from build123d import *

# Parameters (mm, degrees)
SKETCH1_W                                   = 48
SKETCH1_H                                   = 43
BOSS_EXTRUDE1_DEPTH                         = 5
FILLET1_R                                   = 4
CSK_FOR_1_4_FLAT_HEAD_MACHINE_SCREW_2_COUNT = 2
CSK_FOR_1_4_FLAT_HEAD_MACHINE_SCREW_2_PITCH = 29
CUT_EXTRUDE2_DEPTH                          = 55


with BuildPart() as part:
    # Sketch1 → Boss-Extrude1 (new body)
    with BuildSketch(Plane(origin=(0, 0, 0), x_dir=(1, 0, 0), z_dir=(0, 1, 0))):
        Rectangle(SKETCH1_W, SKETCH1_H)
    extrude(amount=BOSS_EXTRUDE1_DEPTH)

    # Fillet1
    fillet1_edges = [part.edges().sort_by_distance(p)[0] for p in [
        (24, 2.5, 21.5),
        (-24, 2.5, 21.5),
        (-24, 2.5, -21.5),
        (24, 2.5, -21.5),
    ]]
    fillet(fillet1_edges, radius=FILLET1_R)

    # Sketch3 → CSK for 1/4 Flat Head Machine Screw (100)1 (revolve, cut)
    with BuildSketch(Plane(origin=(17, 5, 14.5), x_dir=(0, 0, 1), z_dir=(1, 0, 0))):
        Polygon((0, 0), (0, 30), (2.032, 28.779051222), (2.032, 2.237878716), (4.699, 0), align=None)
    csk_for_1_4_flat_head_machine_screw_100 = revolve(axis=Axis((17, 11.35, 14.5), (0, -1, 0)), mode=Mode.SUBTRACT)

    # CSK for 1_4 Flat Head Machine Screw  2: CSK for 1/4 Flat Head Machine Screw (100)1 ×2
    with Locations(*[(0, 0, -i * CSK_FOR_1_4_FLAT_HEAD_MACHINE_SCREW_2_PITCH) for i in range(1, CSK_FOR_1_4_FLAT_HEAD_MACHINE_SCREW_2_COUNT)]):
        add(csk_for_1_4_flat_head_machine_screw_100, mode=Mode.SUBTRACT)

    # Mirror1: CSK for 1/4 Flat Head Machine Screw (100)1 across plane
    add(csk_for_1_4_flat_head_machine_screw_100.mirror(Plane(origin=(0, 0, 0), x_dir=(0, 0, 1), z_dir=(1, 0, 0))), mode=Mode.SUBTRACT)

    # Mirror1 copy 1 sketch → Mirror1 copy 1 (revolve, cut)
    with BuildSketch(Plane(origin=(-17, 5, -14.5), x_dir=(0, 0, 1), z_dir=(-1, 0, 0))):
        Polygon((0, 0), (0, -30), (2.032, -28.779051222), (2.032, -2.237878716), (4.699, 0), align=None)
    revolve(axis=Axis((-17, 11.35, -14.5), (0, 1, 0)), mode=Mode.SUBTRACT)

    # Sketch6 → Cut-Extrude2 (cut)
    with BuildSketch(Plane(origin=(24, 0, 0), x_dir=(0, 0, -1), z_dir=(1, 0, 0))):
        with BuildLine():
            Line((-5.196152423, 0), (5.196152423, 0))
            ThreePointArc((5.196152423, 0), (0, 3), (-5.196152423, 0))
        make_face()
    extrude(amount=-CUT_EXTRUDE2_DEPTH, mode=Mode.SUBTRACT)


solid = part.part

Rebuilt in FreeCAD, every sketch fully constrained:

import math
import FreeCAD as App
import Part
import Sketcher
from FreeCAD import Vector
Q = App.Units.Quantity


def edges_at(feature, points):
    """Names of the edges that pass closest to the given points."""
    edges = feature.Shape.Edges
    near = lambda p: min(range(len(edges)), key=lambda i: edges[i].distToShape(Part.Vertex(*p))[0])
    return sorted({f"Edge{near(p) + 1}" for p in points})


def add_polygon(sketch, points):
    """Adds a closed chain of lines whose ends are joined by coincident constraints."""
    first, n = sketch.GeometryCount, len(points)
    for a, b in zip(points, points[1:] + points[:1]):
        sketch.addGeometry(Part.LineSegment(App.Vector(*a, 0), App.Vector(*b, 0)), False)
    for i in range(n):
        sketch.addConstraint(Sketcher.Constraint("Coincident", first + i, 2, first + (i + 1) % n, 1))

doc = App.newDocument("Part")
params = doc.addObject("Spreadsheet::Sheet", "Params")
for row, (alias, value) in enumerate([
    ("sketch1_width", "48 mm"),
    ("sketch1_height", "43 mm"),
    ("pad1_length", "5 mm"),
    ("fillet_radius", "4 mm"),
    ("sketch2_width", "30 mm"),
    ("groove_angle", "360 deg"),
    ("linearpattern_pitch", "29 mm"),
    ("sketch3_width", "30 mm"),
    ("groove2_angle", "360 deg"),
    ("sketch4_radius", "6 mm"),
    ("pocket1_length", "55 mm"),
], start=1):
    params.set(f"A{row}", alias)
    params.set(f"B{row}", "=" + value)
    params.setAlias(f"B{row}", alias)

body = doc.addObject("PartDesign::Body", "Body")

sketch1 = doc.addObject("Sketcher::SketchObject", "Sketch")
body.addObject(sketch1)
sketch1.AttachmentSupport = (doc.XZ_Plane, [""])
sketch1.MapMode = "FlatFace"
add_polygon(sketch1, [(-24, -22), (-24, 22), (24, 22), (24, -22)])
sketch1.addConstraint([
    Sketcher.Constraint("Vertical", 0),
    Sketcher.Constraint("Horizontal", 1),
    Sketcher.Constraint("Vertical", 2),
    Sketcher.Constraint("Horizontal", 3),
    Sketcher.Constraint("Symmetric", 0, 2, 2, 2, -1, 1),
    Sketcher.Constraint("DistanceX", 1, 1, 1, 2, 48.0),
    Sketcher.Constraint("DistanceY", 0, 1, 0, 2, 43.0),
])
sketch1.setExpression("Constraints[9]", "Params.sketch1_width")
sketch1.setExpression("Constraints[10]", "Params.sketch1_height")
pad1 = doc.addObject("PartDesign::Pad", "Pad")
body.addObject(pad1)
pad1.Profile = sketch1
pad1.setExpression("Length", "Params.pad1_length")
pad1.Reversed = True
doc.recompute()

fillet = doc.addObject("PartDesign::Fillet", "Fillet")
body.addObject(fillet)
fillet.Base = (pad1, edges_at(pad1, [
    (24, 2.5, 21.5),
    (-24, 2.5, 21.5),
    (-24, 2.5, -21.5),
    (24, 2.5, -21.5),
]))
fillet.setExpression("Radius", "Params.fillet_radius")

sketch2 = doc.addObject("Sketcher::SketchObject", "Sketch001")
body.addObject(sketch2)
sketch2.AttachmentSupport = (doc.YZ_Plane, [""])
sketch2.MapMode = "FlatFace"
sketch2.AttachmentOffset = App.Placement(Vector(0, 0, 17), App.Rotation())
add_polygon(sketch2, [(-25, 14.5), (5, 14.5), (5, 19.2), (2.8, 16.5), (-23.8, 16.5)])
sketch2.addGeometry(Part.LineSegment(Vector(5, 14.5, 0), Vector(-25, 14.5, 0)), True)
sketch2.addConstraint([
    Sketcher.Constraint("Horizontal", 0),
    Sketcher.Constraint("Vertical", 1),
    Sketcher.Constraint("Horizontal", 3),
    Sketcher.Constraint("Horizontal", 5),
    Sketcher.Constraint("Coincident", 5, 1, 0, 2),
    Sketcher.Constraint("Equal", 0, 5),
    Sketcher.Constraint("DistanceX", 0, 1, 0, 2, 30.0),
    Sketcher.Constraint("Angle", 2, Q("-130 deg")),
    Sketcher.Constraint("Angle", 4, Q("-121 deg")),
    Sketcher.Constraint("DistanceX", -1, 1, 0, 2, 5.0),
    Sketcher.Constraint("DistanceY", -1, 1, 0, 2, 14.5),
    Sketcher.Constraint("DistanceY", 1, 1, 1, 2, 4.699),
    Sketcher.Constraint("DistanceY", -1, 1, 2, 2, 16.532),
])
sketch2.setExpression("Constraints[11]", "Params.sketch2_width")
groove = doc.addObject("PartDesign::Groove", "Groove")
body.addObject(groove)
groove.Profile = sketch2
groove.ReferenceAxis = (sketch2, ["Axis0"])
groove.setExpression("Angle", "Params.groove_angle")
doc.recompute()

linearpattern = doc.addObject("PartDesign::LinearPattern", "LinearPattern")
body.addObject(linearpattern)
linearpattern.Originals = [groove]
linearpattern.Direction = (doc.Z_Axis, [""])
linearpattern.Mode = "offset"
linearpattern.setExpression("Offset", "Params.linearpattern_pitch")
linearpattern.Occurrences = 2
linearpattern.Reversed = True
body.Tip = linearpattern
doc.recompute()

mirrored = doc.addObject("PartDesign::Mirrored", "Mirrored")
body.addObject(mirrored)
mirrored.Originals = [groove]
mirrored.MirrorPlane = (doc.YZ_Plane, [""])
body.Tip = mirrored

sketch3 = doc.addObject("Sketcher::SketchObject", "Sketch002")
body.addObject(sketch3)
sketch3.AttachmentSupport = (doc.YZ_Plane, [""])
sketch3.MapMode = "FlatFace"
sketch3.AttachmentOffset = App.Placement(Vector(0, 0, -17), App.Rotation())
add_polygon(sketch3, [(5, -14.5), (-25, -14.5), (-23.8, -12.5), (2.8, -12.5), (5, -9.8)])
sketch3.addGeometry(Part.LineSegment(Vector(-25, -14.5, 0), Vector(5, -14.5, 0)), True)
sketch3.addConstraint([
    Sketcher.Constraint("Horizontal", 0),
    Sketcher.Constraint("Horizontal", 2),
    Sketcher.Constraint("Vertical", 4),
    Sketcher.Constraint("Horizontal", 5),
    Sketcher.Constraint("Coincident", 5, 1, 0, 2),
    Sketcher.Constraint("Vertical", 3, 2, 5, 2),
    Sketcher.Constraint("DistanceX", 0, 2, 0, 1, 30.0),
    Sketcher.Constraint("Angle", 1, Q("59 deg")),
    Sketcher.Constraint("Angle", 3, Q("50 deg")),
    Sketcher.Constraint("DistanceX", 0, 2, -1, 1, 25.0),
    Sketcher.Constraint("DistanceY", 0, 2, -1, 1, 14.5),
    Sketcher.Constraint("DistanceY", 4, 2, 4, 1, 4.699),
    Sketcher.Constraint("DistanceY", 1, 2, -1, 1, 12.468),
])
sketch3.setExpression("Constraints[11]", "Params.sketch3_width")
groove2 = doc.addObject("PartDesign::Groove", "Groove001")
body.addObject(groove2)
groove2.Profile = sketch3
groove2.ReferenceAxis = (sketch3, ["Axis0"])
groove2.setExpression("Angle", "Params.groove2_angle")

sketch4 = doc.addObject("Sketcher::SketchObject", "Sketch003")
body.addObject(sketch4)
sketch4.AttachmentSupport = (doc.YZ_Plane, [""])
sketch4.MapMode = "FlatFace"
sketch4.AttachmentOffset = App.Placement(Vector(0, 0, 24), App.Rotation())
sketch4.addGeometry([
    Part.LineSegment(Vector(0, 5, 0), Vector(0, -5, 0)),
    Part.ArcOfCircle(Part.Circle(Vector(-3, 0, 0), Vector(0, 0, 1), 6), math.radians(-60), math.radians(60)),
], False)
sketch4.addConstraint([
    Sketcher.Constraint("Coincident", 0, 1, 1, 2),
    Sketcher.Constraint("Coincident", 1, 1, 0, 2),
    Sketcher.Constraint("Vertical", 0),
    Sketcher.Constraint("Symmetric", 0, 1, 1, 1, -1, 1),
    Sketcher.Constraint("Radius", 1, 6.0),
    Sketcher.Constraint("DistanceX", 1, 3, -1, 1, 3.0),
])
sketch4.setExpression("Constraints[4]", "Params.sketch4_radius")
pocket1 = doc.addObject("PartDesign::Pocket", "Pocket")
body.addObject(pocket1)
pocket1.Profile = sketch4
pocket1.setExpression("Length", "Params.pocket1_length")

doc.recompute()
